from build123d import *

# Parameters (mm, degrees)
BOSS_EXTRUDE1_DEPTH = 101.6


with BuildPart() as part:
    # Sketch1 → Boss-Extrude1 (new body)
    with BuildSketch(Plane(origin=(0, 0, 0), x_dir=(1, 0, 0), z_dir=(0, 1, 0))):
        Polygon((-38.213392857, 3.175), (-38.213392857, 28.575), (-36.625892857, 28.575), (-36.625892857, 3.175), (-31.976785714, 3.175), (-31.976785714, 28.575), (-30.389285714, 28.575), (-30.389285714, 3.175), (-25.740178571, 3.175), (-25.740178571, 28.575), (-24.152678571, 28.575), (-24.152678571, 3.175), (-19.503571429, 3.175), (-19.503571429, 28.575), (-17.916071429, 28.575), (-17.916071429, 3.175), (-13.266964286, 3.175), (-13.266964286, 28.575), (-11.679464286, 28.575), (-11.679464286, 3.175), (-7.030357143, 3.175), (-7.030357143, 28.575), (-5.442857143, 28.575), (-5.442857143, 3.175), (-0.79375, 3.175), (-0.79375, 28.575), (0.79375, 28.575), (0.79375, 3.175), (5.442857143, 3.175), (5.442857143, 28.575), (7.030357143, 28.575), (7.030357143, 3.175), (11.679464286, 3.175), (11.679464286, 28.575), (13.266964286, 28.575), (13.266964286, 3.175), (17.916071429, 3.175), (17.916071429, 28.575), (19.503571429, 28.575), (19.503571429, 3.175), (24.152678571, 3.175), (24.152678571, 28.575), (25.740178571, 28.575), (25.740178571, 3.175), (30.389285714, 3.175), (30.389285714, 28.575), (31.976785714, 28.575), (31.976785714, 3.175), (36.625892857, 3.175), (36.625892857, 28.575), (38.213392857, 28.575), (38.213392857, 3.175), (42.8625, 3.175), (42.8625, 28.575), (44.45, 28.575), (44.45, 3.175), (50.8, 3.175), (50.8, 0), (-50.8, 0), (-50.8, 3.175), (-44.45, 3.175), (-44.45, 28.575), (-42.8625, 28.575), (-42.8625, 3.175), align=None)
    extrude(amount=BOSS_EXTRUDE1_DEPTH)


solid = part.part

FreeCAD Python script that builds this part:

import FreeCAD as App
import Part
import Sketcher
Q = App.Units.Quantity

doc = App.newDocument("Part")
params = doc.addObject("Spreadsheet::Sheet", "Params")
for row, (alias, value) in enumerate([
    ("sketch1_width", "4 in"),
    ("sketch1_height", "1 in"),
    ("sketch1_width2", "0.25 in"),
    ("sketch1_width3", "0.0625 in"),
    ("sketch1_height2", "0.125 in"),
    ("pad1_length", "4 in"),
], start=1):
    params.set(f"A{row}", alias)
    params.set(f"B{row}", "=" + value)
    params.setAlias(f"B{row}", alias)

body = doc.addObject("PartDesign::Body", "Body")

# Sketch on XZ plane
sketch1 = body.newObject("Sketcher::SketchObject", "Sketch")
sketch1.AttachmentSupport = (doc.getObject("XZ_Plane"), [""])
sketch1.MapMode = "FlatFace"
sketch1.addGeometry(Part.LineSegment(App.Vector(-38.2, -28.6, 0), App.Vector(-38.2, -3.2, 0)), False)
sketch1.addGeometry(Part.LineSegment(App.Vector(-38.2, -3.2, 0), App.Vector(-42.9, -3.2, 0)), False)
sketch1.addGeometry(Part.LineSegment(App.Vector(-42.9, -3.2, 0), App.Vector(-42.9, -28.6, 0)), False)
sketch1.addGeometry(Part.LineSegment(App.Vector(-42.9, -28.6, 0), App.Vector(-44.5, -28.6, 0)), False)
sketch1.addGeometry(Part.LineSegment(App.Vector(-44.5, -28.6, 0), App.Vector(-44.5, -3.2, 0)), False)
sketch1.addGeometry(Part.LineSegment(App.Vector(-44.5, -3.2, 0), App.Vector(-50.8, -3.2, 0)), False)
sketch1.addGeometry(Part.LineSegment(App.Vector(-50.8, -3.2, 0), App.Vector(-50.8, 0, 0)), False)
sketch1.addGeometry(Part.LineSegment(App.Vector(-50.8, 0, 0), App.Vector(50.8, 0, 0)), False)
sketch1.addGeometry(Part.LineSegment(App.Vector(50.8, 0, 0), App.Vector(50.8, -3.2, 0)), False)
sketch1.addGeometry(Part.LineSegment(App.Vector(50.8, -3.2, 0), App.Vector(44.5, -3.2, 0)), False)
sketch1.addGeometry(Part.LineSegment(App.Vector(44.5, -3.2, 0), App.Vector(44.5, -28.6, 0)), False)
sketch1.addGeometry(Part.LineSegment(App.Vector(44.5, -28.6, 0), App.Vector(42.9, -28.6, 0)), False)
sketch1.addGeometry(Part.LineSegment(App.Vector(42.9, -28.6, 0), App.Vector(42.9, -3.2, 0)), False)
sketch1.addGeometry(Part.LineSegment(App.Vector(42.9, -3.2, 0), App.Vector(38.2, -3.2, 0)), False)
sketch1.addGeometry(Part.LineSegment(App.Vector(38.2, -3.2, 0), App.Vector(38.2, -28.6, 0)), False)
sketch1.addGeometry(Part.LineSegment(App.Vector(38.2, -28.6, 0), App.Vector(36.6, -28.6, 0)), False)
sketch1.addGeometry(Part.LineSegment(App.Vector(36.6, -28.6, 0), App.Vector(36.6, -3.2, 0)), False)
sketch1.addGeometry(Part.LineSegment(App.Vector(36.6, -3.2, 0), App.Vector(32, -3.2, 0)), False)
sketch1.addGeometry(Part.LineSegment(App.Vector(32, -3.2, 0), App.Vector(32, -28.6, 0)), False)
sketch1.addGeometry(Part.LineSegment(App.Vector(32, -28.6, 0), App.Vector(30.4, -28.6, 0)), False)
sketch1.addGeometry(Part.LineSegment(App.Vector(30.4, -28.6, 0), App.Vector(30.4, -3.2, 0)), False)
sketch1.addGeometry(Part.LineSegment(App.Vector(30.4, -3.2, 0), App.Vector(25.7, -3.2, 0)), False)
sketch1.addGeometry(Part.LineSegment(App.Vector(25.7, -3.2, 0), App.Vector(25.7, -28.6, 0)), False)
sketch1.addGeometry(Part.LineSegment(App.Vector(25.7, -28.6, 0), App.Vector(24.2, -28.6, 0)), False)
sketch1.addGeometry(Part.LineSegment(App.Vector(24.2, -28.6, 0), App.Vector(24.2, -3.2, 0)), False)
sketch1.addGeometry(Part.LineSegment(App.Vector(24.2, -3.2, 0), App.Vector(19.5, -3.2, 0)), False)
sketch1.addGeometry(Part.LineSegment(App.Vector(19.5, -3.2, 0), App.Vector(19.5, -28.6, 0)), False)
sketch1.addGeometry(Part.LineSegment(App.Vector(19.5, -28.6, 0), App.Vector(17.9, -28.6, 0)), False)
sketch1.addGeometry(Part.LineSegment(App.Vector(17.9, -28.6, 0), App.Vector(17.9, -3.2, 0)), False)
sketch1.addGeometry(Part.LineSegment(App.Vector(17.9, -3.2, 0), App.Vector(13.3, -3.2, 0)), False)
sketch1.addGeometry(Part.LineSegment(App.Vector(13.3, -3.2, 0), App.Vector(13.3, -28.6, 0)), False)
sketch1.addGeometry(Part.LineSegment(App.Vector(13.3, -28.6, 0), App.Vector(11.7, -28.6, 0)), False)
sketch1.addGeometry(Part.LineSegment(App.Vector(11.7, -28.6, 0), App.Vector(11.7, -3.2, 0)), False)
sketch1.addGeometry(Part.LineSegment(App.Vector(11.7, -3.2, 0), App.Vector(7, -3.2, 0)), False)
sketch1.addGeometry(Part.LineSegment(App.Vector(7, -3.2, 0), App.Vector(7, -28.6, 0)), False)
sketch1.addGeometry(Part.LineSegment(App.Vector(7, -28.6, 0), App.Vector(5.4, -28.6, 0)), False)
sketch1.addGeometry(Part.LineSegment(App.Vector(5.4, -28.6, 0), App.Vector(5.4, -3.2, 0)), False)
sketch1.addGeometry(Part.LineSegment(App.Vector(5.4, -3.2, 0), App.Vector(0.8, -3.2, 0)), False)
sketch1.addGeometry(Part.LineSegment(App.Vector(0.8, -3.2, 0), App.Vector(0.8, -28.6, 0)), False)
sketch1.addGeometry(Part.LineSegment(App.Vector(0.8, -28.6, 0), App.Vector(-0.8, -28.6, 0)), False)
sketch1.addGeometry(Part.LineSegment(App.Vector(-0.8, -28.6, 0), App.Vector(-0.8, -3.2, 0)), False)
sketch1.addGeometry(Part.LineSegment(App.Vector(-0.8, -3.2, 0), App.Vector(-5.4, -3.2, 0)), False)
sketch1.addGeometry(Part.LineSegment(App.Vector(-5.4, -3.2, 0), App.Vector(-5.4, -28.6, 0)), False)
sketch1.addGeometry(Part.LineSegment(App.Vector(-5.4, -28.6, 0), App.Vector(-7, -28.6, 0)), False)
sketch1.addGeometry(Part.LineSegment(App.Vector(-7, -28.6, 0), App.Vector(-7, -3.2, 0)), False)
sketch1.addGeometry(Part.LineSegment(App.Vector(-7, -3.2, 0), App.Vector(-11.7, -3.2, 0)), False)
sketch1.addGeometry(Part.LineSegment(App.Vector(-11.7, -3.2, 0), App.Vector(-11.7, -28.6, 0)), False)
sketch1.addGeometry(Part.LineSegment(App.Vector(-11.7, -28.6, 0), App.Vector(-13.3, -28.6, 0)), False)
sketch1.addGeometry(Part.LineSegment(App.Vector(-13.3, -28.6, 0), App.Vector(-13.3, -3.2, 0)), False)
sketch1.addGeometry(Part.LineSegment(App.Vector(-13.3, -3.2, 0), App.Vector(-17.9, -3.2, 0)), False)
sketch1.addGeometry(Part.LineSegment(App.Vector(-17.9, -3.2, 0), App.Vector(-17.9, -28.6, 0)), False)
sketch1.addGeometry(Part.LineSegment(App.Vector(-17.9, -28.6, 0), App.Vector(-19.5, -28.6, 0)), False)
sketch1.addGeometry(Part.LineSegment(App.Vector(-19.5, -28.6, 0), App.Vector(-19.5, -3.2, 0)), False)
sketch1.addGeometry(Part.LineSegment(App.Vector(-19.5, -3.2, 0), App.Vector(-24.2, -3.2, 0)), False)
sketch1.addGeometry(Part.LineSegment(App.Vector(-24.2, -3.2, 0), App.Vector(-24.2, -28.6, 0)), False)
sketch1.addGeometry(Part.LineSegment(App.Vector(-24.2, -28.6, 0), App.Vector(-25.7, -28.6, 0)), False)
sketch1.addGeometry(Part.LineSegment(App.Vector(-25.7, -28.6, 0), App.Vector(-25.7, -3.2, 0)), False)
sketch1.addGeometry(Part.LineSegment(App.Vector(-25.7, -3.2, 0), App.Vector(-30.4, -3.2, 0)), False)
sketch1.addGeometry(Part.LineSegment(App.Vector(-30.4, -3.2, 0), App.Vector(-30.4, -28.6, 0)), False)
sketch1.addGeometry(Part.LineSegment(App.Vector(-30.4, -28.6, 0), App.Vector(-32, -28.6, 0)), False)
sketch1.addGeometry(Part.LineSegment(App.Vector(-32, -28.6, 0), App.Vector(-32, -3.2, 0)), False)
sketch1.addGeometry(Part.LineSegment(App.Vector(-32, -3.2, 0), App.Vector(-36.6, -3.2, 0)), False)
sketch1.addGeometry(Part.LineSegment(App.Vector(-36.6, -3.2, 0), App.Vector(-36.6, -28.6, 0)), False)
sketch1.addGeometry(Part.LineSegment(App.Vector(-36.6, -28.6, 0), App.Vector(-38.2, -28.6, 0)), False)
sketch1.addConstraint(Sketcher.Constraint("Coincident", 0, 2, 1, 1))
sketch1.addConstraint(Sketcher.Constraint("Coincident", 1, 2, 2, 1))
sketch1.addConstraint(Sketcher.Constraint("Coincident", 2, 2, 3, 1))
sketch1.addConstraint(Sketcher.Constraint("Coincident", 3, 2, 4, 1))
sketch1.addConstraint(Sketcher.Constraint("Coincident", 4, 2, 5, 1))
sketch1.addConstraint(Sketcher.Constraint("Coincident", 5, 2, 6, 1))
sketch1.addConstraint(Sketcher.Constraint("Coincident", 6, 2, 7, 1))
sketch1.addConstraint(Sketcher.Constraint("Coincident", 7, 2, 8, 1))
sketch1.addConstraint(Sketcher.Constraint("Coincident", 8, 2, 9, 1))
sketch1.addConstraint(Sketcher.Constraint("Coincident", 9, 2, 10, 1))
sketch1.addConstraint(Sketcher.Constraint("Coincident", 10, 2, 11, 1))
sketch1.addConstraint(Sketcher.Constraint("Coincident", 11, 2, 12, 1))
sketch1.addConstraint(Sketcher.Constraint("Coincident", 12, 2, 13, 1))
sketch1.addConstraint(Sketcher.Constraint("Coincident", 13, 2, 14, 1))
sketch1.addConstraint(Sketcher.Constraint("Coincident", 14, 2, 15, 1))
sketch1.addConstraint(Sketcher.Constraint("Coincident", 15, 2, 16, 1))
sketch1.addConstraint(Sketcher.Constraint("Coincident", 16, 2, 17, 1))
sketch1.addConstraint(Sketcher.Constraint("Coincident", 17, 2, 18, 1))
sketch1.addConstraint(Sketcher.Constraint("Coincident", 18, 2, 19, 1))
sketch1.addConstraint(Sketcher.Constraint("Coincident", 19, 2, 20, 1))
sketch1.addConstraint(Sketcher.Constraint("Coincident", 20, 2, 21, 1))
sketch1.addConstraint(Sketcher.Constraint("Coincident", 21, 2, 22, 1))
sketch1.addConstraint(Sketcher.Constraint("Coincident", 22, 2, 23, 1))
sketch1.addConstraint(Sketcher.Constraint("Coincident", 23, 2, 24, 1))
sketch1.addConstraint(Sketcher.Constraint("Coincident", 24, 2, 25, 1))
sketch1.addConstraint(Sketcher.Constraint("Coincident", 25, 2, 26, 1))
sketch1.addConstraint(Sketcher.Constraint("Coincident", 26, 2, 27, 1))
sketch1.addConstraint(Sketcher.Constraint("Coincident", 27, 2, 28, 1))
sketch1.addConstraint(Sketcher.Constraint("Coincident", 28, 2, 29, 1))
sketch1.addConstraint(Sketcher.Constraint("Coincident", 29, 2, 30, 1))
sketch1.addConstraint(Sketcher.Constraint("Coincident", 30, 2, 31, 1))
sketch1.addConstraint(Sketcher.Constraint("Coincident", 31, 2, 32, 1))
sketch1.addConstraint(Sketcher.Constraint("Coincident", 32, 2, 33, 1))
sketch1.addConstraint(Sketcher.Constraint("Coincident", 33, 2, 34, 1))
sketch1.addConstraint(Sketcher.Constraint("Coincident", 34, 2, 35, 1))
sketch1.addConstraint(Sketcher.Constraint("Coincident", 35, 2, 36, 1))
sketch1.addConstraint(Sketcher.Constraint("Coincident", 36, 2, 37, 1))
sketch1.addConstraint(Sketcher.Constraint("Coincident", 37, 2, 38, 1))
sketch1.addConstraint(Sketcher.Constraint("Coincident", 38, 2, 39, 1))
sketch1.addConstraint(Sketcher.Constraint("Coincident", 39, 2, 40, 1))
sketch1.addConstraint(Sketcher.Constraint("Coincident", 40, 2, 41, 1))
sketch1.addConstraint(Sketcher.Constraint("Coincident", 41, 2, 42, 1))
sketch1.addConstraint(Sketcher.Constraint("Coincident", 42, 2, 43, 1))
sketch1.addConstraint(Sketcher.Constraint("Coincident", 43, 2, 44, 1))
sketch1.addConstraint(Sketcher.Constraint("Coincident", 44, 2, 45, 1))
sketch1.addConstraint(Sketcher.Constraint("Coincident", 45, 2, 46, 1))
sketch1.addConstraint(Sketcher.Constraint("Coincident", 46, 2, 47, 1))
sketch1.addConstraint(Sketcher.Constraint("Coincident", 47, 2, 48, 1))
sketch1.addConstraint(Sketcher.Constraint("Coincident", 48, 2, 49, 1))
sketch1.addConstraint(Sketcher.Constraint("Coincident", 49, 2, 50, 1))
sketch1.addConstraint(Sketcher.Constraint("Coincident", 50, 2, 51, 1))
sketch1.addConstraint(Sketcher.Constraint("Coincident", 51, 2, 52, 1))
sketch1.addConstraint(Sketcher.Constraint("Coincident", 52, 2, 53, 1))
sketch1.addConstraint(Sketcher.Constraint("Coincident", 53, 2, 54, 1))
sketch1.addConstraint(Sketcher.Constraint("Coincident", 54, 2, 55, 1))
sketch1.addConstraint(Sketcher.Constraint("Coincident", 55, 2, 56, 1))
sketch1.addConstraint(Sketcher.Constraint("Coincident", 56, 2, 57, 1))
sketch1.addConstraint(Sketcher.Constraint("Coincident", 57, 2, 58, 1))
sketch1.addConstraint(Sketcher.Constraint("Coincident", 58, 2, 59, 1))
sketch1.addConstraint(Sketcher.Constraint("Coincident", 59, 2, 60, 1))
sketch1.addConstraint(Sketcher.Constraint("Coincident", 60, 2, 61, 1))
sketch1.addConstraint(Sketcher.Constraint("Coincident", 61, 2, 62, 1))
sketch1.addConstraint(Sketcher.Constraint("Coincident", 62, 2, 63, 1))
sketch1.addConstraint(Sketcher.Constraint("Coincident", 63, 2, 0, 1))
sketch1.addConstraint(Sketcher.Constraint("Vertical", 0))
sketch1.addConstraint(Sketcher.Constraint("Horizontal", 1))
sketch1.addConstraint(Sketcher.Constraint("Vertical", 2))
sketch1.addConstraint(Sketcher.Constraint("Horizontal", 3))
sketch1.addConstraint(Sketcher.Constraint("Vertical", 4))
sketch1.addConstraint(Sketcher.Constraint("Horizontal", 5))
sketch1.addConstraint(Sketcher.Constraint("Vertical", 6))
sketch1.addConstraint(Sketcher.Constraint("Horizontal", 7))
sketch1.addConstraint(Sketcher.Constraint("Vertical", 8))
sketch1.addConstraint(Sketcher.Constraint("Horizontal", 9))
sketch1.addConstraint(Sketcher.Constraint("Vertical", 10))
sketch1.addConstraint(Sketcher.Constraint("Horizontal", 11))
sketch1.addConstraint(Sketcher.Constraint("Vertical", 12))
sketch1.addConstraint(Sketcher.Constraint("Horizontal", 13))
sketch1.addConstraint(Sketcher.Constraint("Vertical", 14))
sketch1.addConstraint(Sketcher.Constraint("Horizontal", 15))
sketch1.addConstraint(Sketcher.Constraint("Vertical", 16))
sketch1.addConstraint(Sketcher.Constraint("Horizontal", 17))
sketch1.addConstraint(Sketcher.Constraint("Vertical", 18))
sketch1.addConstraint(Sketcher.Constraint("Horizontal", 19))
sketch1.addConstraint(Sketcher.Constraint("Vertical", 20))
sketch1.addConstraint(Sketcher.Constraint("Horizontal", 21))
sketch1.addConstraint(Sketcher.Constraint("Vertical", 22))
sketch1.addConstraint(Sketcher.Constraint("Horizontal", 23))
sketch1.addConstraint(Sketcher.Constraint("Vertical", 24))
sketch1.addConstraint(Sketcher.Constraint("Horizontal", 25))
sketch1.addConstraint(Sketcher.Constraint("Vertical", 26))
sketch1.addConstraint(Sketcher.Constraint("Horizontal", 27))
sketch1.addConstraint(Sketcher.Constraint("Vertical", 28))
sketch1.addConstraint(Sketcher.Constraint("Horizontal", 29))
sketch1.addConstraint(Sketcher.Constraint("Vertical", 30))
sketch1.addConstraint(Sketcher.Constraint("Horizontal", 31))
sketch1.addConstraint(Sketcher.Constraint("Vertical", 32))
sketch1.addConstraint(Sketcher.Constraint("Horizontal", 33))
sketch1.addConstraint(Sketcher.Constraint("Vertical", 34))
sketch1.addConstraint(Sketcher.Constraint("Horizontal", 35))
sketch1.addConstraint(Sketcher.Constraint("Vertical", 36))
sketch1.addConstraint(Sketcher.Constraint("Horizontal", 37))
sketch1.addConstraint(Sketcher.Constraint("Vertical", 38))
sketch1.addConstraint(Sketcher.Constraint("Horizontal", 39))
sketch1.addConstraint(Sketcher.Constraint("Vertical", 40))
sketch1.addConstraint(Sketcher.Constraint("Horizontal", 41))
sketch1.addConstraint(Sketcher.Constraint("Vertical", 42))
sketch1.addConstraint(Sketcher.Constraint("Horizontal", 43))
sketch1.addConstraint(Sketcher.Constraint("Vertical", 44))
sketch1.addConstraint(Sketcher.Constraint("Horizontal", 45))
sketch1.addConstraint(Sketcher.Constraint("Vertical", 46))
sketch1.addConstraint(Sketcher.Constraint("Horizontal", 47))
sketch1.addConstraint(Sketcher.Constraint("Vertical", 48))
sketch1.addConstraint(Sketcher.Constraint("Horizontal", 49))
sketch1.addConstraint(Sketcher.Constraint("Vertical", 50))
sketch1.addConstraint(Sketcher.Constraint("Horizontal", 51))
sketch1.addConstraint(Sketcher.Constraint("Vertical", 52))
sketch1.addConstraint(Sketcher.Constraint("Horizontal", 53))
sketch1.addConstraint(Sketcher.Constraint("Vertical", 54))
sketch1.addConstraint(Sketcher.Constraint("Horizontal", 55))
sketch1.addConstraint(Sketcher.Constraint("Vertical", 56))
sketch1.addConstraint(Sketcher.Constraint("Horizontal", 57))
sketch1.addConstraint(Sketcher.Constraint("Vertical", 58))
sketch1.addConstraint(Sketcher.Constraint("Horizontal", 59))
sketch1.addConstraint(Sketcher.Constraint("Vertical", 60))
sketch1.addConstraint(Sketcher.Constraint("Horizontal", 61))
sketch1.addConstraint(Sketcher.Constraint("Vertical", 62))
sketch1.addConstraint(Sketcher.Constraint("Horizontal", 63))
sketch1.addConstraint(Sketcher.Constraint("Symmetric", 6, 2, 7, 2, -1, 1))
sketch1.addConstraint(Sketcher.Constraint("Symmetric", 4, 2, 9, 2, -2))
sketch1.addConstraint(Sketcher.Constraint("Symmetric", 2, 2, 11, 2, -2))
sketch1.addConstraint(Sketcher.Constraint("Symmetric", 0, 2, 13, 2, -2))
sketch1.addConstraint(Sketcher.Constraint("Symmetric", 37, 2, 40, 2, -2))
sketch1.addConstraint(Sketcher.Constraint("Symmetric", 35, 2, 42, 2, -2))
sketch1.addConstraint(Sketcher.Constraint("Symmetric", 33, 2, 44, 2, -2))
sketch1.addConstraint(Sketcher.Constraint("Symmetric", 31, 2, 46, 2, -2))
sketch1.addConstraint(Sketcher.Constraint("Symmetric", 29, 2, 48, 2, -2))
sketch1.addConstraint(Sketcher.Constraint("Symmetric", 27, 2, 50, 2, -2))
sketch1.addConstraint(Sketcher.Constraint("Symmetric", 25, 2, 52, 2, -2))
sketch1.addConstraint(Sketcher.Constraint("Symmetric", 23, 2, 54, 2, -2))
sketch1.addConstraint(Sketcher.Constraint("Symmetric", 21, 2, 56, 2, -2))
sketch1.addConstraint(Sketcher.Constraint("Symmetric", 19, 2, 58, 2, -2))
sketch1.addConstraint(Sketcher.Constraint("Symmetric", 17, 2, 60, 2, -2))
sketch1.addConstraint(Sketcher.Constraint("Symmetric", 15, 2, 62, 2, -2))
sketch1.addConstraint(Sketcher.Constraint("Horizontal", 1, 2, 4, 2))
sketch1.addConstraint(Sketcher.Constraint("Horizontal", 11, 2, 14, 2))
sketch1.addConstraint(Sketcher.Constraint("Horizontal", 13, 2, 16, 2))
sketch1.addConstraint(Sketcher.Constraint("Horizontal", 15, 2, 18, 2))
sketch1.addConstraint(Sketcher.Constraint("Horizontal", 17, 2, 20, 2))
sketch1.addConstraint(Sketcher.Constraint("Horizontal", 19, 2, 22, 2))
sketch1.addConstraint(Sketcher.Constraint("Horizontal", 21, 2, 24, 2))
sketch1.addConstraint(Sketcher.Constraint("Horizontal", 23, 2, 26, 2))
sketch1.addConstraint(Sketcher.Constraint("Horizontal", 25, 2, 28, 2))
sketch1.addConstraint(Sketcher.Constraint("Horizontal", 27, 2, 30, 2))
sketch1.addConstraint(Sketcher.Constraint("Horizontal", 29, 2, 32, 2))
sketch1.addConstraint(Sketcher.Constraint("Horizontal", 31, 2, 34, 2))
sketch1.addConstraint(Sketcher.Constraint("Horizontal", 33, 2, 36, 2))
sketch1.addConstraint(Sketcher.Constraint("Horizontal", 35, 2, 38, 2))
sketch1.addConstraint(Sketcher.Constraint("Equal", 11, 15))
sketch1.addConstraint(Sketcher.Constraint("Equal", 13, 17))
sketch1.addConstraint(Sketcher.Constraint("Equal", 15, 19))
sketch1.addConstraint(Sketcher.Constraint("Equal", 17, 21))
sketch1.addConstraint(Sketcher.Constraint("Equal", 19, 23))
sketch1.addConstraint(Sketcher.Constraint("Equal", 21, 25))
sketch1.addConstraint(Sketcher.Constraint("Equal", 23, 27))
sketch1.addConstraint(Sketcher.Constraint("Equal", 25, 29))
sketch1.addConstraint(Sketcher.Constraint("Equal", 27, 31))
sketch1.addConstraint(Sketcher.Constraint("Equal", 29, 33))
sketch1.addConstraint(Sketcher.Constraint("Equal", 31, 35))
sketch1.addConstraint(Sketcher.Constraint("Equal", 33, 37))
sketch1.addConstraint(Sketcher.Constraint("Equal", 35, 39))
sketch1.addConstraint(Sketcher.Constraint("DistanceX", 7, 1, 7, 2, Q("4 in")))
sketch1.addConstraint(Sketcher.Constraint("DistanceY", 0, 1, 0, 2, Q("1 in")))
sketch1.addConstraint(Sketcher.Constraint("DistanceX", 5, 2, 5, 1, Q("0.25 in")))
sketch1.addConstraint(Sketcher.Constraint("DistanceX", 3, 2, 3, 1, Q("0.0625 in")))
sketch1.addConstraint(Sketcher.Constraint("DistanceY", 6, 1, 6, 2, Q("0.125 in")))
sketch1.setExpression("Constraints[171]", "Params.sketch1_width")
sketch1.setExpression("Constraints[172]", "Params.sketch1_height")
sketch1.setExpression("Constraints[173]", "Params.sketch1_width2")
sketch1.setExpression("Constraints[174]", "Params.sketch1_width3")
sketch1.setExpression("Constraints[175]", "Params.sketch1_height2")
pad1 = body.newObject("PartDesign::Pad", "Pad")
pad1.Profile = sketch1
pad1.setExpression("Length", "Params.pad1_length")
pad1.Reversed = True

doc.recompute()
